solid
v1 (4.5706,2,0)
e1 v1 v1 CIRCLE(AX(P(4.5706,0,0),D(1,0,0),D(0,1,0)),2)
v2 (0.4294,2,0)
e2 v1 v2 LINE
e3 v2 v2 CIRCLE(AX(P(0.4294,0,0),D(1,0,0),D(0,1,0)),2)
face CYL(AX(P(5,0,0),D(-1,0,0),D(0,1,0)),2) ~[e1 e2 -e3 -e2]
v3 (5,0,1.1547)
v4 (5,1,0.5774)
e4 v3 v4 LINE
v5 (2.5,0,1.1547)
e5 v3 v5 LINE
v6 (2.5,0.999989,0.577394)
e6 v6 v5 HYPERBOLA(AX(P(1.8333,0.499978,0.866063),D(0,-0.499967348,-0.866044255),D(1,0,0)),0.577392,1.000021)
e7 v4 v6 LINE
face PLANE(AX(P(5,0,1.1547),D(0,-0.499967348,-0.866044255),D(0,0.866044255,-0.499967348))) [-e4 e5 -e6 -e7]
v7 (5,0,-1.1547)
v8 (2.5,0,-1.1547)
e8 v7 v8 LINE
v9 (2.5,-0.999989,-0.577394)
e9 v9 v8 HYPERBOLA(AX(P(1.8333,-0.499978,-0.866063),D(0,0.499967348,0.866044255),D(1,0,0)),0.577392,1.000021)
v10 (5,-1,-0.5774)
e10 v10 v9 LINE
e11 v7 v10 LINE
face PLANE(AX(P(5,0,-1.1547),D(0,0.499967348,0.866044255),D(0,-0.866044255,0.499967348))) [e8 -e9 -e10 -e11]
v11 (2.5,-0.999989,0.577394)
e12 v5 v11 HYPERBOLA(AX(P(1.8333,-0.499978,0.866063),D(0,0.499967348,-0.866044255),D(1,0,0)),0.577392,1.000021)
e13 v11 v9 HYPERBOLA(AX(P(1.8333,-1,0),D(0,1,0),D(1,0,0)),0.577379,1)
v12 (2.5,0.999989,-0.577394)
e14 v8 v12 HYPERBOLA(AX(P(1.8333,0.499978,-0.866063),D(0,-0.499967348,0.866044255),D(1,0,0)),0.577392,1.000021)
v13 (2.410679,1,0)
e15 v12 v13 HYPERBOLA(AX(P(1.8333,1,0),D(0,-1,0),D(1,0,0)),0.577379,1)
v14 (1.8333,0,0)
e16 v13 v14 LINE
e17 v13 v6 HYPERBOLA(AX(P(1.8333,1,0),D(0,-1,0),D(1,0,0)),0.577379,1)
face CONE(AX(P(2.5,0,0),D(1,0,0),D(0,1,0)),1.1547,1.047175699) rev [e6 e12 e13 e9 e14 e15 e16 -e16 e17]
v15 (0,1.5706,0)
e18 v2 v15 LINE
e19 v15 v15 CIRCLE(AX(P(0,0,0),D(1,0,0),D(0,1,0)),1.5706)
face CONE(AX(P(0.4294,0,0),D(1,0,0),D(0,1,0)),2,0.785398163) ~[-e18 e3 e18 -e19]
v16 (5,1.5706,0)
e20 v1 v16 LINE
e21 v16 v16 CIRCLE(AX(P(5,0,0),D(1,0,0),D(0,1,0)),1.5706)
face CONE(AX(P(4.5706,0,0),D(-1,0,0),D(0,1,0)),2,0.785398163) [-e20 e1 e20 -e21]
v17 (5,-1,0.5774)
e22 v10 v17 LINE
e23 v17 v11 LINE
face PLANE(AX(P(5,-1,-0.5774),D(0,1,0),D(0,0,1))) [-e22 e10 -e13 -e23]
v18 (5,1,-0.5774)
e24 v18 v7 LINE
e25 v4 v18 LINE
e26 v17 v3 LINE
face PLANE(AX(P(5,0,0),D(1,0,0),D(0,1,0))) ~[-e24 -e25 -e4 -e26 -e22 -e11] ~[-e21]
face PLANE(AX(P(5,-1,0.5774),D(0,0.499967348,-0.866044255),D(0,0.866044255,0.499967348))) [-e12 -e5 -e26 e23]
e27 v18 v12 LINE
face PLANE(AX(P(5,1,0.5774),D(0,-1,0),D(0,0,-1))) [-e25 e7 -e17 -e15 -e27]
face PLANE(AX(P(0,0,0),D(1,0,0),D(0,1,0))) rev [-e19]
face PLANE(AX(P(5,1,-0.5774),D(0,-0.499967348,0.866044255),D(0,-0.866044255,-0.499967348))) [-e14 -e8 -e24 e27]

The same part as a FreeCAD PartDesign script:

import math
import FreeCAD as App
import Part
import Sketcher
Q = App.Units.Quantity


def edges_at(feature, points):
    """Names of the edges that pass closest to the given points."""
    edges = feature.Shape.Edges
    near = lambda p: min(range(len(edges)), key=lambda i: edges[i].distToShape(Part.Vertex(*p))[0])
    return sorted({f"Edge{near(p) + 1}" for p in points})


def add_polygon(sketch, points):
    """Adds a closed chain of lines whose ends are joined by coincident constraints."""
    first, n = sketch.GeometryCount, len(points)
    for a, b in zip(points, points[1:] + points[:1]):
        sketch.addGeometry(Part.LineSegment(App.Vector(*a, 0), App.Vector(*b, 0)), False)
    for i in range(n):
        sketch.addConstraint(Sketcher.Constraint("Coincident", first + i, 2, first + (i + 1) % n, 1))

doc = App.newDocument("Part")
body = doc.addObject("PartDesign::Body", "Body")

# Sketch on XY plane
sketch1 = doc.addObject("Sketcher::SketchObject", "Sketch")
body.addObject(sketch1)
sketch1.AttachmentSupport = (doc.XY_Plane, [""])
sketch1.MapMode = "FlatFace"
add_polygon(sketch1, [(0, 2), (0, 0), (1.8, 0), (2.5, 1.2), (5, 1.2), (5, 2)])  # lines 0-5
sketch1.addConstraint([
    Sketcher.Constraint("Vertical", 0),
    Sketcher.Constraint("Horizontal", 1),
    Sketcher.Constraint("Horizontal", 3),
    Sketcher.Constraint("Vertical", 4),
    Sketcher.Constraint("Horizontal", 5),
    Sketcher.Constraint("Coincident", 0, 2, -1, 1),
    Sketcher.Constraint("DistanceX", 5, 2, 5, 1, Q("5 mm")),
    Sketcher.Constraint("DistanceX", 3, 1, 3, 2, Q("2.5 mm")),
    Sketcher.Constraint("DistanceY", 0, 2, 0, 1, Q("2 mm")),
    Sketcher.Constraint("DistanceX", 1, 1, 1, 2, Q("1.8333 mm")),
    Sketcher.Constraint("DistanceY", 4, 1, 4, 2, Q("0.8453 mm")),
])
revolution = doc.addObject("PartDesign::Revolution", "Revolution")
body.addObject(revolution)
revolution.Profile = sketch1
revolution.ReferenceAxis = (sketch1, ["H_Axis"])
revolution.Angle = 360
doc.recompute()

chamfer = doc.addObject("PartDesign::Chamfer", "Chamfer")
body.addObject(chamfer)
chamfer.Base = (revolution, edges_at(revolution, [(5, -2, 0)]))
chamfer.Size = 0.4294

# Sketch on YZ plane
sketch2 = doc.addObject("Sketcher::SketchObject", "Sketch001")
body.addObject(sketch2)
sketch2.AttachmentSupport = (doc.YZ_Plane, [""])
sketch2.MapMode = "FlatFace"
sketch2.AttachmentOffset = App.Placement(App.Vector(0, 0, 5), App.Rotation())
sketch2.addGeometry([
    Part.LineSegment(App.Vector(1, -0.6, 0), App.Vector(0, -1.2, 0)),  # 0
    Part.ArcOfCircle(Part.Circle(App.Vector(0, 0, 0), App.Vector(0, 0, 1), 1.2), math.radians(-90), math.radians(-30)),  # 1
    Part.ArcOfCircle(Part.Circle(App.Vector(0, 0, 0), App.Vector(0, 0, 1), 1.2), math.radians(-150), math.radians(-90)),  # 2
    Part.LineSegment(App.Vector(0, -1.2, 0), App.Vector(-1, -0.6, 0)),  # 3
    Part.LineSegment(App.Vector(1, 0.6, 0), App.Vector(1, -0.6, 0)),  # 4
    Part.ArcOfCircle(Part.Circle(App.Vector(0, 0, 0), App.Vector(0, 0, 1), 1.2), math.radians(-30), math.radians(30)),  # 5
    Part.ArcOfCircle(Part.Circle(App.Vector(0, 0, 0), App.Vector(0, 0, 1), 1.2), math.radians(150), math.radians(210)),  # 6
    Part.LineSegment(App.Vector(-1, 0.6, 0), App.Vector(-1, -0.6, 0)),  # 7
    Part.LineSegment(App.Vector(0, 1.2, 0), App.Vector(1, 0.6, 0)),  # 8
    Part.ArcOfCircle(Part.Circle(App.Vector(0, 0, 0), App.Vector(0, 0, 1), 1.2), math.radians(30), math.radians(90)),  # 9
    Part.ArcOfCircle(Part.Circle(App.Vector(0, 0, 0), App.Vector(0, 0, 1), 1.2), math.radians(90), math.radians(150)),  # 10
    Part.LineSegment(App.Vector(0, 1.2, 0), App.Vector(-1, 0.6, 0)),  # 11
], False)
sketch2.addConstraint([
    Sketcher.Constraint("Coincident", 0, 1, 1, 2),
    Sketcher.Constraint("Coincident", 1, 1, 0, 2),
    Sketcher.Constraint("Coincident", 2, 1, 3, 2),
    Sketcher.Constraint("Coincident", 3, 1, 2, 2),
    Sketcher.Constraint("Coincident", 4, 1, 5, 2),
    Sketcher.Constraint("Coincident", 5, 1, 4, 2),
    Sketcher.Constraint("Coincident", 6, 1, 7, 1),
    Sketcher.Constraint("Coincident", 7, 2, 6, 2),
    Sketcher.Constraint("Coincident", 8, 1, 9, 2),
    Sketcher.Constraint("Coincident", 9, 1, 8, 2),
    Sketcher.Constraint("Coincident", 10, 1, 11, 1),
    Sketcher.Constraint("Coincident", 11, 2, 10, 2),
    Sketcher.Constraint("Vertical", 4),
    Sketcher.Constraint("Vertical", 7),
    Sketcher.Constraint("Coincident", 1, 3, -1, 1),
    Sketcher.Constraint("Coincident", 2, 3, -1, 1),
    Sketcher.Constraint("Coincident", 5, 3, -1, 1),
    Sketcher.Constraint("Coincident", 6, 3, -1, 1),
    Sketcher.Constraint("Coincident", 9, 3, -1, 1),
    Sketcher.Constraint("Coincident", 10, 3, -1, 1),
    Sketcher.Constraint("Coincident", 3, 1, 1, 1),
    Sketcher.Constraint("Coincident", 5, 1, 0, 1),
    Sketcher.Constraint("Coincident", 7, 2, 2, 1),
    Sketcher.Constraint("Coincident", 9, 1, 4, 1),
    Sketcher.Constraint("Coincident", 10, 1, 8, 1),
    Sketcher.Constraint("PointOnObject", 1, 1, -2),
    Sketcher.Constraint("PointOnObject", 8, 1, -2),
    Sketcher.Constraint("Parallel", 3, 8),
    Sketcher.Constraint("Parallel", 0, 11),
    Sketcher.Constraint("DistanceX", -1, 1, 0, 1, Q("1 mm")),
    Sketcher.Constraint("Radius", 1, Q("1.1547 mm")),
])
pad1 = doc.addObject("PartDesign::Pad", "Pad")
body.addObject(pad1)
pad1.Profile = sketch2
pad1.Type = "UpToFirst"
pad1.Reversed = True
doc.recompute()

chamfer2 = doc.addObject("PartDesign::Chamfer", "Chamfer001")
body.addObject(chamfer2)
chamfer2.Base = (pad1, edges_at(pad1, [(0, -2, 0)]))
chamfer2.Size = 0.4294

doc.recompute()
